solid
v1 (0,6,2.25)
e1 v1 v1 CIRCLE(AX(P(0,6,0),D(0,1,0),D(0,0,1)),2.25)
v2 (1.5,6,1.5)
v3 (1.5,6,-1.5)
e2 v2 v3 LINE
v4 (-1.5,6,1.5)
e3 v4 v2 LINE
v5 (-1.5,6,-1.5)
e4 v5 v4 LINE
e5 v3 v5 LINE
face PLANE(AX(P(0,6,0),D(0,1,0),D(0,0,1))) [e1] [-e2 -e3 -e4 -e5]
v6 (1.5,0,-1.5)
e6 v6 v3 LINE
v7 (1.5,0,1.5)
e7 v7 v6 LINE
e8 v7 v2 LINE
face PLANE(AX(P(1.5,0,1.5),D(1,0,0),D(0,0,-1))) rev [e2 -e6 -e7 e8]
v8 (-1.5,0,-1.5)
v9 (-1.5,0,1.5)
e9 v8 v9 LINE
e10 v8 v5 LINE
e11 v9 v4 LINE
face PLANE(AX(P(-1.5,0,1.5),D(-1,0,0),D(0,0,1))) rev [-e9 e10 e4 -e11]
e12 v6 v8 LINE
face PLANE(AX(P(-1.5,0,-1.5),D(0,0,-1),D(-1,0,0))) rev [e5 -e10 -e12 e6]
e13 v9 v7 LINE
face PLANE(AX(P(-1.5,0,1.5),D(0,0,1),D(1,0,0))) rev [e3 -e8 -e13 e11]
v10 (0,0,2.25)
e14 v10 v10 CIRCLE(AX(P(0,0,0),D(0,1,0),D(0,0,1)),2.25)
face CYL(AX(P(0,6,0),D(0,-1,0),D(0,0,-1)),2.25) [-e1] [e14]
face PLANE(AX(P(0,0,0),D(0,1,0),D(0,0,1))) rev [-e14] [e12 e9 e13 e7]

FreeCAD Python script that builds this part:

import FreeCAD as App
import Part
import Sketcher

doc = App.newDocument("Part")
body = doc.addObject("PartDesign::Body", "Body")

# Sketch on XZ plane
sketch1 = body.newObject("Sketcher::SketchObject", "Sketch")
sketch1.AttachmentSupport = (doc.getObject("XZ_Plane"), [""])
sketch1.MapMode = "FlatFace"
sketch1.addGeometry(Part.Circle(App.Vector(0, 0, 0), App.Vector(0, 0, 1), 2.25), False)
sketch1.addConstraint(Sketcher.Constraint("Coincident", 0, 3, -1, 1))
sketch1.addConstraint(Sketcher.Constraint("Diameter", 0, 4.5))
pad1 = body.newObject("PartDesign::Pad", "Pad")
pad1.Profile = sketch1
pad1.Length = 6
pad1.Reversed = True

# Sketch on XZ plane
sketch2 = body.newObject("Sketcher::SketchObject", "Sketch001")
sketch2.AttachmentSupport = (doc.getObject("XZ_Plane"), [""])
sketch2.MapMode = "FlatFace"
sketch2.AttachmentOffset = App.Placement(App.Vector(0, 0, -6), App.Rotation())
sketch2.addGeometry(Part.LineSegment(App.Vector(-1.5, -1.5, 0), App.Vector(-1.5, 1.5, 0)), False)
sketch2.addGeometry(Part.LineSegment(App.Vector(-1.5, 1.5, 0), App.Vector(1.5, 1.5, 0)), False)
sketch2.addGeometry(Part.LineSegment(App.Vector(1.5, 1.5, 0), App.Vector(1.5, -1.5, 0)), False)
sketch2.addGeometry(Part.LineSegment(App.Vector(1.5, -1.5, 0), App.Vector(-1.5, -1.5, 0)), False)
sketch2.addConstraint(Sketcher.Constraint("Coincident", 0, 2, 1, 1))
sketch2.addConstraint(Sketcher.Constraint("Coincident", 1, 2, 2, 1))
sketch2.addConstraint(Sketcher.Constraint("Coincident", 2, 2, 3, 1))
sketch2.addConstraint(Sketcher.Constraint("Coincident", 3, 2, 0, 1))
sketch2.addConstraint(Sketcher.Constraint("Vertical", 0))
sketch2.addConstraint(Sketcher.Constraint("Horizontal", 1))
sketch2.addConstraint(Sketcher.Constraint("Vertical", 2))
sketch2.addConstraint(Sketcher.Constraint("Horizontal", 3))
sketch2.addConstraint(Sketcher.Constraint("Symmetric", 0, 2, 2, 2, -1, 1))
sketch2.addConstraint(Sketcher.Constraint("Equal", 3, 0))
sketch2.addConstraint(Sketcher.Constraint("DistanceX", 1, 1, 1, 2, 3.0))
pocket1 = body.newObject("PartDesign::Pocket", "Pocket")
pocket1.Profile = sketch2
pocket1.Type = "ThroughAll"
pocket1.Reversed = True

doc.recompute()
